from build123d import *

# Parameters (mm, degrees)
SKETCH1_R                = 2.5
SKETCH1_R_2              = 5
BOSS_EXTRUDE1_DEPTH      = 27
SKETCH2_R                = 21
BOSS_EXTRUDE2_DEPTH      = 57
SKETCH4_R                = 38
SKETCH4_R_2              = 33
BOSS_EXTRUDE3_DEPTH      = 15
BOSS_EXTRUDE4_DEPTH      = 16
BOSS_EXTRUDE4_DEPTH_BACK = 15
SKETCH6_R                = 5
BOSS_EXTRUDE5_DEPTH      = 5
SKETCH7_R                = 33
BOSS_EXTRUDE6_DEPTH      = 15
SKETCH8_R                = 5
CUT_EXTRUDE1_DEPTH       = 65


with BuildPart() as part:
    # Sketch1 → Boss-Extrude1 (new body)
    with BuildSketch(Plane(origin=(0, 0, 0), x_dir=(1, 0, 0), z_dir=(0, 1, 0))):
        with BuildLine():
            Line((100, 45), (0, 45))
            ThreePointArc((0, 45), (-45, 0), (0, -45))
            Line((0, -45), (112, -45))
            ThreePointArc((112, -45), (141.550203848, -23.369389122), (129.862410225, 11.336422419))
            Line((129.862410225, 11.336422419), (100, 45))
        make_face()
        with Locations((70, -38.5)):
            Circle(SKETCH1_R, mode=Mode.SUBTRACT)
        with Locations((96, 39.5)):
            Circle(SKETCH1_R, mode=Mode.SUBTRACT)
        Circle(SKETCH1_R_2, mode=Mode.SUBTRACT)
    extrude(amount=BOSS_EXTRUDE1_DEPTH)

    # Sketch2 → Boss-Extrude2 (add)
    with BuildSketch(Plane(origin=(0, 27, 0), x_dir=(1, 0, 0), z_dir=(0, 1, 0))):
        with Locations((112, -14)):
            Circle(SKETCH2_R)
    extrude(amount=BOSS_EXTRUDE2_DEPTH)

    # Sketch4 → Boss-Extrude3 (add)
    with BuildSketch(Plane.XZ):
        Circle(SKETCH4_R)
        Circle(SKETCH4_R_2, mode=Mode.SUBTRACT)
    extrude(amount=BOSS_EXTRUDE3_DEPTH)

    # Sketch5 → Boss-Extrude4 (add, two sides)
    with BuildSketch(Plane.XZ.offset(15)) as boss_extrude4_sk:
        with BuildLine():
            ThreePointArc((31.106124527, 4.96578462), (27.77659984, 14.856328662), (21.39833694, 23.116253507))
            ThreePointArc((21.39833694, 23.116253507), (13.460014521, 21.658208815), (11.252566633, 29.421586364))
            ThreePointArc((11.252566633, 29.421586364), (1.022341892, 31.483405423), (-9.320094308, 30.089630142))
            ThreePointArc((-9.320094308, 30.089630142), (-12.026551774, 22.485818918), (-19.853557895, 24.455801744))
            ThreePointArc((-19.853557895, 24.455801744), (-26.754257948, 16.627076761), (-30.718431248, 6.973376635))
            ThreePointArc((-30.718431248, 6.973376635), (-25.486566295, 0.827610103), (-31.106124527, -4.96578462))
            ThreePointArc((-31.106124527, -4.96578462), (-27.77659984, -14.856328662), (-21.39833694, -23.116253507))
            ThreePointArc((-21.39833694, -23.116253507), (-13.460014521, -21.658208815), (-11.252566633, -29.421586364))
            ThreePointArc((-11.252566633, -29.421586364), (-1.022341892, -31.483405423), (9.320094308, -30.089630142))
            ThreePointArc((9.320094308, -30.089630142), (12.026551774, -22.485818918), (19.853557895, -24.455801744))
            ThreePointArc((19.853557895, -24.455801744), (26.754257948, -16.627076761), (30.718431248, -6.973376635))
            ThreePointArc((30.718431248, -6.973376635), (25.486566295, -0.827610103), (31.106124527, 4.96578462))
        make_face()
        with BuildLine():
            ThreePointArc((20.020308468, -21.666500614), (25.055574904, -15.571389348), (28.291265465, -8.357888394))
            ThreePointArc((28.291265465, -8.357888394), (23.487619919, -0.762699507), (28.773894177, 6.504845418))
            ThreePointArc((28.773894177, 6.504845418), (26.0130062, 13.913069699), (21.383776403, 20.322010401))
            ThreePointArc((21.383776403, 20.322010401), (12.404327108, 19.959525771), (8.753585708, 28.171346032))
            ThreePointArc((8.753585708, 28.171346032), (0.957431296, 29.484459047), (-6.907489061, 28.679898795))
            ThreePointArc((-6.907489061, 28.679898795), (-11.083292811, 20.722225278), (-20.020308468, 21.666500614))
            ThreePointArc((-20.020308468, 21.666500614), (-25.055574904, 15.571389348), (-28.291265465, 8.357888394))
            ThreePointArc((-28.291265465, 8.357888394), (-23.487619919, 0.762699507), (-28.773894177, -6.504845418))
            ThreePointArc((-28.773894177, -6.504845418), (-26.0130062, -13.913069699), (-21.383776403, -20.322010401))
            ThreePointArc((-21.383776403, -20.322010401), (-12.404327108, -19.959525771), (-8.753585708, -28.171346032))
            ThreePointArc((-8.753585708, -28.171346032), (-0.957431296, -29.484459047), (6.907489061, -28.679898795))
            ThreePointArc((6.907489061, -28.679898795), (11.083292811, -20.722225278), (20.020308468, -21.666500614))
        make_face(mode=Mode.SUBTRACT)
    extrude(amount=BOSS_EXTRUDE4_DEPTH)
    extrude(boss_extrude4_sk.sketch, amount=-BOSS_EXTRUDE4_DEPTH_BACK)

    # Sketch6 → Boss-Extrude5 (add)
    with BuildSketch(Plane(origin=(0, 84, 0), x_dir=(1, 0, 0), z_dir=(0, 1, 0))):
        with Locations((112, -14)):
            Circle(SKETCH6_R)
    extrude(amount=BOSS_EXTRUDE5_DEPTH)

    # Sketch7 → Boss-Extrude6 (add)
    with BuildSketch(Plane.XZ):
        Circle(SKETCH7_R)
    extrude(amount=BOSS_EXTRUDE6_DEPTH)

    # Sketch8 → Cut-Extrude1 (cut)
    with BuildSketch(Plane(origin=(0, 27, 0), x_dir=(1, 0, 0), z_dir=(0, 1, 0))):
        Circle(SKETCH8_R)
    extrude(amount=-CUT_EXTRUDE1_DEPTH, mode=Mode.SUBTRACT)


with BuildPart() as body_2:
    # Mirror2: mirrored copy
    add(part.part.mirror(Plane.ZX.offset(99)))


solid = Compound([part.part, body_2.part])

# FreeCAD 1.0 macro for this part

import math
import FreeCAD as App
import Part
import Sketcher

V = App.Vector
Q = App.Units.Quantity

doc = App.newDocument("Part")
params = doc.addObject("Spreadsheet::Sheet", "Params")
for row, (alias, value) in enumerate([
    ("sketch1_diameter", "10 mm"),
    ("sketch1_diameter2", "5 mm"),
    ("sketch1_radius", "45 mm"),
    ("sketch1_radius2", "31 mm"),
    ("sketch1_width", "100 mm"),
    ("pad1_length", "27 mm"),
    ("sketch2_diameter", "42 mm"),
    ("pad2_length", "57 mm"),
    ("sketch3_diameter", "76 mm"),
    ("sketch3_diameter2", "66 mm"),
    ("pad3_length", "15 mm"),
    ("sketch4_radius", "6 mm"),
    ("sketch4_radius2", "8 mm"),
    ("sketch4_radius3", "31.5 mm"),
    ("sketch4_radius4", "29.5 mm"),
    ("pad4_length", "16 mm"),
    ("pad4_length2", "15 mm"),
    ("sketch5_diameter", "10 mm"),
    ("pad5_length", "5 mm"),
    ("sketch6_diameter", "66 mm"),
    ("pad6_length", "15 mm"),
    ("sketch7_diameter", "10 mm"),
    ("pocket1_length", "65 mm"),
], start=1):
    params.set(f"A{row}", alias)
    params.set(f"B{row}", "=" + value)
    params.setAlias(f"B{row}", alias)

body = doc.addObject("PartDesign::Body", "Body")

# Sketch on XZ plane
sketch1 = body.newObject("Sketcher::SketchObject", "Sketch")
sketch1.AttachmentSupport = (doc.getObject("XZ_Plane"), [""])
sketch1.MapMode = "FlatFace"
sketch1.addGeometry([
    Part.LineSegment(V(100, -45, 0), V(0, -45, 0)),  # 0
    Part.ArcOfCircle(Part.Circle(V(0, 0, 0), V(0, 0, 1), 45), math.radians(90), math.radians(270)),  # 1
    Part.LineSegment(V(0, 45, 0), V(112, 45, 0)),  # 2
    Part.ArcOfCircle(Part.Circle(V(112, 14, 0), V(0, 0, 1), 31), math.radians(-55), math.radians(90)),  # 3
    Part.LineSegment(V(129.9, -11.3, 0), V(100, -45, 0)),  # 4
    Part.Circle(V(0, 0, 0), V(0, 0, 1), 5),  # 5
    Part.Circle(V(70, 38.5, 0), V(0, 0, 1), 2.5),  # 6
    Part.Circle(V(96, -39.5, 0), V(0, 0, 1), 2.5),  # 7
], False)
sketch1.addConstraint([
    Sketcher.Constraint("Tangent", 0, 2, 1, 2),
    Sketcher.Constraint("Tangent", 1, 1, 2, 1),
    Sketcher.Constraint("Tangent", 2, 2, 3, 2),
    Sketcher.Constraint("Coincident", 3, 1, 4, 1),
    Sketcher.Constraint("Coincident", 4, 2, 0, 1),
    Sketcher.Constraint("Horizontal", 0),
    Sketcher.Constraint("Horizontal", 2),
    Sketcher.Constraint("Coincident", 1, 3, -1, 1),
    Sketcher.Constraint("Coincident", 5, 3, -1, 1),
    Sketcher.Constraint("Equal", 6, 7),
    Sketcher.Constraint("Diameter", 5, Q("10 mm")),
    Sketcher.Constraint("Diameter", 6, Q("5 mm")),
    Sketcher.Constraint("Radius", 1, Q("45 mm")),
    Sketcher.Constraint("Radius", 3, Q("31 mm")),
    Sketcher.Constraint("DistanceX", 0, 2, 0, 1, Q("100 mm")),
    Sketcher.Constraint("DistanceX", 2, 1, 2, 2, Q("112 mm")),
    Sketcher.Constraint("Distance", 4, Q("45 mm")),
    Sketcher.Constraint("DistanceX", -1, 1, 6, 3, Q("70 mm")),
    Sketcher.Constraint("DistanceX", -1, 1, 7, 3, Q("96 mm")),
    Sketcher.Constraint("DistanceY", 7, 3, 6, 3, Q("78 mm")),
    Sketcher.Constraint("DistanceY", -1, 1, 6, 3, Q("38.5 mm")),
])
sketch1.setExpression("Constraints[10]", "Params.sketch1_diameter")
sketch1.setExpression("Constraints[11]", "Params.sketch1_diameter2")
sketch1.setExpression("Constraints[12]", "Params.sketch1_radius")
sketch1.setExpression("Constraints[13]", "Params.sketch1_radius2")
sketch1.setExpression("Constraints[14]", "Params.sketch1_width")
pad1 = body.newObject("PartDesign::Pad", "Pad")
pad1.Profile = sketch1
pad1.setExpression("Length", "Params.pad1_length")
pad1.Reversed = True

# Sketch on XZ plane
sketch2 = body.newObject("Sketcher::SketchObject", "Sketch001")
sketch2.AttachmentSupport = (doc.getObject("XZ_Plane"), [""])
sketch2.MapMode = "FlatFace"
sketch2.AttachmentOffset = App.Placement(V(0, 0, -27), App.Rotation())
sketch2.addGeometry(Part.Circle(V(112, 14, 0), V(0, 0, 1), 21), False)
sketch2.addConstraint([
    Sketcher.Constraint("Diameter", 0, Q("42 mm")),
    Sketcher.Constraint("DistanceX", -1, 1, 0, 3, Q("112 mm")),
    Sketcher.Constraint("DistanceY", -1, 1, 0, 3, Q("14 mm")),
])
sketch2.setExpression("Constraints[0]", "Params.sketch2_diameter")
pad2 = body.newObject("PartDesign::Pad", "Pad001")
pad2.Profile = sketch2
pad2.setExpression("Length", "Params.pad2_length")
pad2.Reversed = True

# Sketch on XZ plane
sketch3 = body.newObject("Sketcher::SketchObject", "Sketch002")
sketch3.AttachmentSupport = (doc.getObject("XZ_Plane"), [""])
sketch3.MapMode = "FlatFace"
sketch3.addGeometry([
    Part.Circle(V(0, 0, 0), V(0, 0, 1), 38),
    Part.Circle(V(0, 0, 0), V(0, 0, 1), 33),
], False)
sketch3.addConstraint([
    Sketcher.Constraint("Coincident", 0, 3, -1, 1),
    Sketcher.Constraint("Coincident", 1, 3, -1, 1),
    Sketcher.Constraint("Diameter", 0, Q("76 mm")),
    Sketcher.Constraint("Diameter", 1, Q("66 mm")),
])
sketch3.setExpression("Constraints[2]", "Params.sketch3_diameter")
sketch3.setExpression("Constraints[3]", "Params.sketch3_diameter2")
pad3 = body.newObject("PartDesign::Pad", "Pad002")
pad3.Profile = sketch3
pad3.setExpression("Length", "Params.pad3_length")

# Sketch on XZ plane
sketch4 = body.newObject("Sketcher::SketchObject", "Sketch003")
sketch4.AttachmentSupport = (doc.getObject("XZ_Plane"), [""])
sketch4.MapMode = "FlatFace"
sketch4.AttachmentOffset = App.Placement(V(0, 0, 15), App.Rotation())
sketch4.addGeometry([
    Part.ArcOfCircle(Part.Circle(V(0, 0, 0), V(0, 0, 1), 32), math.radians(9), math.radians(47)),  # 0
    Part.ArcOfCircle(Part.Circle(V(17, 27, 0), V(0, 0, 1), 6), math.radians(154), math.radians(323)),  # 1
    Part.ArcOfCircle(Part.Circle(V(0, 0, 0), V(0, 0, 1), 32), math.radians(69), math.radians(107)),  # 2
    Part.ArcOfCircle(Part.Circle(V(-15, 28, 0), V(0, 0, 1), 6), math.radians(-146), math.radians(23)),  # 3
    Part.ArcOfCircle(Part.Circle(V(0, 0, 0), V(0, 0, 1), 32), math.radians(129), math.radians(167)),  # 4
    Part.ArcOfCircle(Part.Circle(V(-31, 1, 0), V(0, 0, 1), 6), math.radians(-86), math.radians(83)),  # 5
    Part.ArcOfCircle(Part.Circle(V(0, 0, 0), V(0, 0, 1), 32), math.radians(-171), math.radians(-133)),  # 6
    Part.ArcOfCircle(Part.Circle(V(-17, -27, 0), V(0, 0, 1), 6), math.radians(-26), math.radians(143)),  # 7
    Part.ArcOfCircle(Part.Circle(V(0, 0, 0), V(0, 0, 1), 32), math.radians(-111), math.radians(-73)),  # 8
    Part.ArcOfCircle(Part.Circle(V(15, -28, 0), V(0, 0, 1), 6), math.radians(34), math.radians(203)),  # 9
    Part.ArcOfCircle(Part.Circle(V(0, 0, 0), V(0, 0, 1), 32), math.radians(-51), math.radians(-13)),  # 10
    Part.ArcOfCircle(Part.Circle(V(31, -1, 0), V(0, 0, 1), 6), math.radians(94), math.radians(263)),  # 11
    Part.ArcOfCircle(Part.Circle(V(0, 0, 0), V(0, 0, 1), 30), math.radians(-47), math.radians(-16)),  # 12
    Part.ArcOfCircle(Part.Circle(V(15, -28, 0), V(0, 0, 1), 8), math.radians(50), math.radians(186)),  # 13
    Part.ArcOfCircle(Part.Circle(V(0, 0, 0), V(0, 0, 1), 30), math.radians(-107), math.radians(-76)),  # 14
    Part.ArcOfCircle(Part.Circle(V(-17, -27, 0), V(0, 0, 1), 8), math.radians(-10), math.radians(126)),  # 15
    Part.ArcOfCircle(Part.Circle(V(0, 0, 0), V(0, 0, 1), 29), math.radians(-167), math.radians(-136)),  # 16
    Part.ArcOfCircle(Part.Circle(V(-31, 1, 0), V(0, 0, 1), 8), math.radians(-70), math.radians(66)),  # 17
    Part.ArcOfCircle(Part.Circle(V(0, 0, 0), V(0, 0, 1), 30), math.radians(133), math.radians(164)),  # 18
    Part.ArcOfCircle(Part.Circle(V(-15, 28, 0), V(0, 0, 1), 8), math.radians(-130), math.radians(6)),  # 19
    Part.ArcOfCircle(Part.Circle(V(0, 0, 0), V(0, 0, 1), 30), math.radians(73), math.radians(104)),  # 20
    Part.ArcOfCircle(Part.Circle(V(17, 27, 0), V(0, 0, 1), 8), math.radians(170), math.radians(306)),  # 21
    Part.ArcOfCircle(Part.Circle(V(0, 0, 0), V(0, 0, 1), 29), math.radians(13), math.radians(44)),  # 22
    Part.ArcOfCircle(Part.Circle(V(31, -1, 0), V(0, 0, 1), 8), math.radians(110), math.radians(246)),  # 23
], False)
sketch4.addConstraint([
    Sketcher.Constraint("Coincident", 0, 2, 1, 2),
    Sketcher.Constraint("Coincident", 1, 1, 2, 1),
    Sketcher.Constraint("Coincident", 2, 2, 3, 2),
    Sketcher.Constraint("Coincident", 3, 1, 4, 1),
    Sketcher.Constraint("Coincident", 4, 2, 5, 2),
    Sketcher.Constraint("Coincident", 5, 1, 6, 1),
    Sketcher.Constraint("Coincident", 6, 2, 7, 2),
    Sketcher.Constraint("Coincident", 7, 1, 8, 1),
    Sketcher.Constraint("Coincident", 8, 2, 9, 2),
    Sketcher.Constraint("Coincident", 9, 1, 10, 1),
    Sketcher.Constraint("Coincident", 10, 2, 11, 2),
    Sketcher.Constraint("Coincident", 11, 1, 0, 1),
    Sketcher.Constraint("Coincident", 12, 1, 13, 1),
    Sketcher.Constraint("Coincident", 13, 2, 14, 2),
    Sketcher.Constraint("Coincident", 14, 1, 15, 1),
    Sketcher.Constraint("Coincident", 15, 2, 16, 2),
    Sketcher.Constraint("Coincident", 16, 1, 17, 1),
    Sketcher.Constraint("Coincident", 17, 2, 18, 2),
    Sketcher.Constraint("Coincident", 18, 1, 19, 1),
    Sketcher.Constraint("Coincident", 19, 2, 20, 2),
    Sketcher.Constraint("Coincident", 20, 1, 21, 1),
    Sketcher.Constraint("Coincident", 21, 2, 22, 2),
    Sketcher.Constraint("Coincident", 22, 1, 23, 1),
    Sketcher.Constraint("Coincident", 23, 2, 12, 2),
    Sketcher.Constraint("Coincident", 0, 3, -1, 1),
    Sketcher.Constraint("Coincident", 2, 3, -1, 1),
    Sketcher.Constraint("Coincident", 4, 3, -1, 1),
    Sketcher.Constraint("Coincident", 6, 3, -1, 1),
    Sketcher.Constraint("Coincident", 8, 3, -1, 1),
    Sketcher.Constraint("Coincident", 10, 3, -1, 1),
    Sketcher.Constraint("Coincident", 12, 3, -1, 1),
    Sketcher.Constraint("Coincident", 14, 3, -1, 1),
    Sketcher.Constraint("Coincident", 16, 3, -1, 1),
    Sketcher.Constraint("Coincident", 18, 3, -1, 1),
    Sketcher.Constraint("Coincident", 20, 3, -1, 1),
    Sketcher.Constraint("Coincident", 22, 3, -1, 1),
    Sketcher.Constraint("Coincident", 13, 3, 9, 3),
    Sketcher.Constraint("Coincident", 15, 3, 7, 3),
    Sketcher.Constraint("Coincident", 17, 3, 5, 3),
    Sketcher.Constraint("Coincident", 19, 3, 3, 3),
    Sketcher.Constraint("Coincident", 21, 3, 1, 3),
    Sketcher.Constraint("Coincident", 23, 3, 11, 3),
    Sketcher.Constraint("Equal", 0, 2),
    Sketcher.Constraint("Equal", 1, 3),
    Sketcher.Constraint("Equal", 2, 4),
    Sketcher.Constraint("Equal", 3, 5),
    Sketcher.Constraint("Equal", 4, 6),
    Sketcher.Constraint("Equal", 5, 7),
    Sketcher.Constraint("Equal", 6, 8),
    Sketcher.Constraint("Equal", 7, 9),
    Sketcher.Constraint("Equal", 8, 10),
    Sketcher.Constraint("Equal", 9, 11),
    Sketcher.Constraint("Equal", 12, 14),
    Sketcher.Constraint("Equal", 13, 15),
    Sketcher.Constraint("Equal", 14, 16),
    Sketcher.Constraint("Equal", 15, 17),
    Sketcher.Constraint("Equal", 16, 18),
    Sketcher.Constraint("Equal", 17, 19),
    Sketcher.Constraint("Equal", 18, 20),
    Sketcher.Constraint("Equal", 19, 21),
    Sketcher.Constraint("Equal", 20, 22),
    Sketcher.Constraint("Equal", 21, 23),
    Sketcher.Constraint("Symmetric", 1, 3, 7, 3, -1, 1),
    Sketcher.Constraint("Symmetric", 3, 3, 9, 3, -1, 1),
    Sketcher.Constraint("Symmetric", 5, 3, 11, 3, -1, 1),
    Sketcher.Constraint("Radius", 1, Q("6 mm")),
    Sketcher.Constraint("Radius", 13, Q("8 mm")),
    Sketcher.Constraint("Radius", 0, Q("31.5 mm")),
    Sketcher.Constraint("Radius", 12, Q("29.5 mm")),
    Sketcher.Constraint("DistanceY", -1, 1, 3, 3, Q("27.7766 mm")),
    Sketcher.Constraint("DistanceY", -1, 1, 3, 1, Q("24.455802 mm")),
    Sketcher.Constraint("DistanceY", 7, 3, 5, 3, Q("27.7766 mm")),
    Sketcher.Constraint("DistanceX", 15, 2, 7, 3, Q("4.7567 mm")),
    Sketcher.Constraint("DistanceY", -1, 1, 5, 3, Q("1.022342 mm")),
    Sketcher.Constraint("DistanceY", -1, 1, 17, 2, Q("8.357888 mm")),
])
sketch4.setExpression("Constraints[65]", "Params.sketch4_radius")
sketch4.setExpression("Constraints[66]", "Params.sketch4_radius2")
sketch4.setExpression("Constraints[67]", "Params.sketch4_radius3")
sketch4.setExpression("Constraints[68]", "Params.sketch4_radius4")
pad4 = body.newObject("PartDesign::Pad", "Pad003")
pad4.Profile = sketch4
pad4.Type = "TwoLengths"
pad4.setExpression("Length", "Params.pad4_length")
pad4.setExpression("Length2", "Params.pad4_length2")

# Sketch on XZ plane
sketch5 = body.newObject("Sketcher::SketchObject", "Sketch004")
sketch5.AttachmentSupport = (doc.getObject("XZ_Plane"), [""])
sketch5.MapMode = "FlatFace"
sketch5.AttachmentOffset = App.Placement(V(0, 0, -84), App.Rotation())
sketch5.addGeometry(Part.Circle(V(112, 14, 0), V(0, 0, 1), 5), False)
sketch5.addConstraint([
    Sketcher.Constraint("Diameter", 0, Q("10 mm")),
    Sketcher.Constraint("DistanceX", -1, 1, 0, 3, Q("112 mm")),
    Sketcher.Constraint("DistanceY", -1, 1, 0, 3, Q("14 mm")),
])
sketch5.setExpression("Constraints[0]", "Params.sketch5_diameter")
pad5 = body.newObject("PartDesign::Pad", "Pad004")
pad5.Profile = sketch5
pad5.setExpression("Length", "Params.pad5_length")
pad5.Reversed = True

# Sketch on XZ plane
sketch6 = body.newObject("Sketcher::SketchObject", "Sketch005")
sketch6.AttachmentSupport = (doc.getObject("XZ_Plane"), [""])
sketch6.MapMode = "FlatFace"
sketch6.addGeometry(Part.Circle(V(0, 0, 0), V(0, 0, 1), 33), False)
sketch6.addConstraint([
    Sketcher.Constraint("Coincident", 0, 3, -1, 1),
    Sketcher.Constraint("Diameter", 0, Q("66 mm")),
])
sketch6.setExpression("Constraints[1]", "Params.sketch6_diameter")
pad6 = body.newObject("PartDesign::Pad", "Pad005")
pad6.Profile = sketch6
pad6.setExpression("Length", "Params.pad6_length")

# Sketch on XZ plane
sketch7 = body.newObject("Sketcher::SketchObject", "Sketch006")
sketch7.AttachmentSupport = (doc.getObject("XZ_Plane"), [""])
sketch7.MapMode = "FlatFace"
sketch7.AttachmentOffset = App.Placement(V(0, 0, -27), App.Rotation())
sketch7.addGeometry(Part.Circle(V(0, 0, 0), V(0, 0, 1), 5), False)
sketch7.addConstraint([
    Sketcher.Constraint("Coincident", 0, 3, -1, 1),
    Sketcher.Constraint("Diameter", 0, Q("10 mm")),
])
sketch7.setExpression("Constraints[1]", "Params.sketch7_diameter")
pocket1 = body.newObject("PartDesign::Pocket", "Pocket")
pocket1.Profile = sketch7
pocket1.setExpression("Length", "Params.pocket1_length")
pocket1.Reversed = True
body2 = doc.addObject("PartDesign::Body", "Body001")
doc.recompute()

mirroring = doc.addObject("Part::Mirroring", "Mirroring")
mirroring.Source = body
mirroring.Base = V(0, 99, 0)
mirroring.Normal = V(0, 1, 0)
body2.BaseFeature = mirroring
doc.recompute()
mirroring.Visibility = False

doc.recompute()
